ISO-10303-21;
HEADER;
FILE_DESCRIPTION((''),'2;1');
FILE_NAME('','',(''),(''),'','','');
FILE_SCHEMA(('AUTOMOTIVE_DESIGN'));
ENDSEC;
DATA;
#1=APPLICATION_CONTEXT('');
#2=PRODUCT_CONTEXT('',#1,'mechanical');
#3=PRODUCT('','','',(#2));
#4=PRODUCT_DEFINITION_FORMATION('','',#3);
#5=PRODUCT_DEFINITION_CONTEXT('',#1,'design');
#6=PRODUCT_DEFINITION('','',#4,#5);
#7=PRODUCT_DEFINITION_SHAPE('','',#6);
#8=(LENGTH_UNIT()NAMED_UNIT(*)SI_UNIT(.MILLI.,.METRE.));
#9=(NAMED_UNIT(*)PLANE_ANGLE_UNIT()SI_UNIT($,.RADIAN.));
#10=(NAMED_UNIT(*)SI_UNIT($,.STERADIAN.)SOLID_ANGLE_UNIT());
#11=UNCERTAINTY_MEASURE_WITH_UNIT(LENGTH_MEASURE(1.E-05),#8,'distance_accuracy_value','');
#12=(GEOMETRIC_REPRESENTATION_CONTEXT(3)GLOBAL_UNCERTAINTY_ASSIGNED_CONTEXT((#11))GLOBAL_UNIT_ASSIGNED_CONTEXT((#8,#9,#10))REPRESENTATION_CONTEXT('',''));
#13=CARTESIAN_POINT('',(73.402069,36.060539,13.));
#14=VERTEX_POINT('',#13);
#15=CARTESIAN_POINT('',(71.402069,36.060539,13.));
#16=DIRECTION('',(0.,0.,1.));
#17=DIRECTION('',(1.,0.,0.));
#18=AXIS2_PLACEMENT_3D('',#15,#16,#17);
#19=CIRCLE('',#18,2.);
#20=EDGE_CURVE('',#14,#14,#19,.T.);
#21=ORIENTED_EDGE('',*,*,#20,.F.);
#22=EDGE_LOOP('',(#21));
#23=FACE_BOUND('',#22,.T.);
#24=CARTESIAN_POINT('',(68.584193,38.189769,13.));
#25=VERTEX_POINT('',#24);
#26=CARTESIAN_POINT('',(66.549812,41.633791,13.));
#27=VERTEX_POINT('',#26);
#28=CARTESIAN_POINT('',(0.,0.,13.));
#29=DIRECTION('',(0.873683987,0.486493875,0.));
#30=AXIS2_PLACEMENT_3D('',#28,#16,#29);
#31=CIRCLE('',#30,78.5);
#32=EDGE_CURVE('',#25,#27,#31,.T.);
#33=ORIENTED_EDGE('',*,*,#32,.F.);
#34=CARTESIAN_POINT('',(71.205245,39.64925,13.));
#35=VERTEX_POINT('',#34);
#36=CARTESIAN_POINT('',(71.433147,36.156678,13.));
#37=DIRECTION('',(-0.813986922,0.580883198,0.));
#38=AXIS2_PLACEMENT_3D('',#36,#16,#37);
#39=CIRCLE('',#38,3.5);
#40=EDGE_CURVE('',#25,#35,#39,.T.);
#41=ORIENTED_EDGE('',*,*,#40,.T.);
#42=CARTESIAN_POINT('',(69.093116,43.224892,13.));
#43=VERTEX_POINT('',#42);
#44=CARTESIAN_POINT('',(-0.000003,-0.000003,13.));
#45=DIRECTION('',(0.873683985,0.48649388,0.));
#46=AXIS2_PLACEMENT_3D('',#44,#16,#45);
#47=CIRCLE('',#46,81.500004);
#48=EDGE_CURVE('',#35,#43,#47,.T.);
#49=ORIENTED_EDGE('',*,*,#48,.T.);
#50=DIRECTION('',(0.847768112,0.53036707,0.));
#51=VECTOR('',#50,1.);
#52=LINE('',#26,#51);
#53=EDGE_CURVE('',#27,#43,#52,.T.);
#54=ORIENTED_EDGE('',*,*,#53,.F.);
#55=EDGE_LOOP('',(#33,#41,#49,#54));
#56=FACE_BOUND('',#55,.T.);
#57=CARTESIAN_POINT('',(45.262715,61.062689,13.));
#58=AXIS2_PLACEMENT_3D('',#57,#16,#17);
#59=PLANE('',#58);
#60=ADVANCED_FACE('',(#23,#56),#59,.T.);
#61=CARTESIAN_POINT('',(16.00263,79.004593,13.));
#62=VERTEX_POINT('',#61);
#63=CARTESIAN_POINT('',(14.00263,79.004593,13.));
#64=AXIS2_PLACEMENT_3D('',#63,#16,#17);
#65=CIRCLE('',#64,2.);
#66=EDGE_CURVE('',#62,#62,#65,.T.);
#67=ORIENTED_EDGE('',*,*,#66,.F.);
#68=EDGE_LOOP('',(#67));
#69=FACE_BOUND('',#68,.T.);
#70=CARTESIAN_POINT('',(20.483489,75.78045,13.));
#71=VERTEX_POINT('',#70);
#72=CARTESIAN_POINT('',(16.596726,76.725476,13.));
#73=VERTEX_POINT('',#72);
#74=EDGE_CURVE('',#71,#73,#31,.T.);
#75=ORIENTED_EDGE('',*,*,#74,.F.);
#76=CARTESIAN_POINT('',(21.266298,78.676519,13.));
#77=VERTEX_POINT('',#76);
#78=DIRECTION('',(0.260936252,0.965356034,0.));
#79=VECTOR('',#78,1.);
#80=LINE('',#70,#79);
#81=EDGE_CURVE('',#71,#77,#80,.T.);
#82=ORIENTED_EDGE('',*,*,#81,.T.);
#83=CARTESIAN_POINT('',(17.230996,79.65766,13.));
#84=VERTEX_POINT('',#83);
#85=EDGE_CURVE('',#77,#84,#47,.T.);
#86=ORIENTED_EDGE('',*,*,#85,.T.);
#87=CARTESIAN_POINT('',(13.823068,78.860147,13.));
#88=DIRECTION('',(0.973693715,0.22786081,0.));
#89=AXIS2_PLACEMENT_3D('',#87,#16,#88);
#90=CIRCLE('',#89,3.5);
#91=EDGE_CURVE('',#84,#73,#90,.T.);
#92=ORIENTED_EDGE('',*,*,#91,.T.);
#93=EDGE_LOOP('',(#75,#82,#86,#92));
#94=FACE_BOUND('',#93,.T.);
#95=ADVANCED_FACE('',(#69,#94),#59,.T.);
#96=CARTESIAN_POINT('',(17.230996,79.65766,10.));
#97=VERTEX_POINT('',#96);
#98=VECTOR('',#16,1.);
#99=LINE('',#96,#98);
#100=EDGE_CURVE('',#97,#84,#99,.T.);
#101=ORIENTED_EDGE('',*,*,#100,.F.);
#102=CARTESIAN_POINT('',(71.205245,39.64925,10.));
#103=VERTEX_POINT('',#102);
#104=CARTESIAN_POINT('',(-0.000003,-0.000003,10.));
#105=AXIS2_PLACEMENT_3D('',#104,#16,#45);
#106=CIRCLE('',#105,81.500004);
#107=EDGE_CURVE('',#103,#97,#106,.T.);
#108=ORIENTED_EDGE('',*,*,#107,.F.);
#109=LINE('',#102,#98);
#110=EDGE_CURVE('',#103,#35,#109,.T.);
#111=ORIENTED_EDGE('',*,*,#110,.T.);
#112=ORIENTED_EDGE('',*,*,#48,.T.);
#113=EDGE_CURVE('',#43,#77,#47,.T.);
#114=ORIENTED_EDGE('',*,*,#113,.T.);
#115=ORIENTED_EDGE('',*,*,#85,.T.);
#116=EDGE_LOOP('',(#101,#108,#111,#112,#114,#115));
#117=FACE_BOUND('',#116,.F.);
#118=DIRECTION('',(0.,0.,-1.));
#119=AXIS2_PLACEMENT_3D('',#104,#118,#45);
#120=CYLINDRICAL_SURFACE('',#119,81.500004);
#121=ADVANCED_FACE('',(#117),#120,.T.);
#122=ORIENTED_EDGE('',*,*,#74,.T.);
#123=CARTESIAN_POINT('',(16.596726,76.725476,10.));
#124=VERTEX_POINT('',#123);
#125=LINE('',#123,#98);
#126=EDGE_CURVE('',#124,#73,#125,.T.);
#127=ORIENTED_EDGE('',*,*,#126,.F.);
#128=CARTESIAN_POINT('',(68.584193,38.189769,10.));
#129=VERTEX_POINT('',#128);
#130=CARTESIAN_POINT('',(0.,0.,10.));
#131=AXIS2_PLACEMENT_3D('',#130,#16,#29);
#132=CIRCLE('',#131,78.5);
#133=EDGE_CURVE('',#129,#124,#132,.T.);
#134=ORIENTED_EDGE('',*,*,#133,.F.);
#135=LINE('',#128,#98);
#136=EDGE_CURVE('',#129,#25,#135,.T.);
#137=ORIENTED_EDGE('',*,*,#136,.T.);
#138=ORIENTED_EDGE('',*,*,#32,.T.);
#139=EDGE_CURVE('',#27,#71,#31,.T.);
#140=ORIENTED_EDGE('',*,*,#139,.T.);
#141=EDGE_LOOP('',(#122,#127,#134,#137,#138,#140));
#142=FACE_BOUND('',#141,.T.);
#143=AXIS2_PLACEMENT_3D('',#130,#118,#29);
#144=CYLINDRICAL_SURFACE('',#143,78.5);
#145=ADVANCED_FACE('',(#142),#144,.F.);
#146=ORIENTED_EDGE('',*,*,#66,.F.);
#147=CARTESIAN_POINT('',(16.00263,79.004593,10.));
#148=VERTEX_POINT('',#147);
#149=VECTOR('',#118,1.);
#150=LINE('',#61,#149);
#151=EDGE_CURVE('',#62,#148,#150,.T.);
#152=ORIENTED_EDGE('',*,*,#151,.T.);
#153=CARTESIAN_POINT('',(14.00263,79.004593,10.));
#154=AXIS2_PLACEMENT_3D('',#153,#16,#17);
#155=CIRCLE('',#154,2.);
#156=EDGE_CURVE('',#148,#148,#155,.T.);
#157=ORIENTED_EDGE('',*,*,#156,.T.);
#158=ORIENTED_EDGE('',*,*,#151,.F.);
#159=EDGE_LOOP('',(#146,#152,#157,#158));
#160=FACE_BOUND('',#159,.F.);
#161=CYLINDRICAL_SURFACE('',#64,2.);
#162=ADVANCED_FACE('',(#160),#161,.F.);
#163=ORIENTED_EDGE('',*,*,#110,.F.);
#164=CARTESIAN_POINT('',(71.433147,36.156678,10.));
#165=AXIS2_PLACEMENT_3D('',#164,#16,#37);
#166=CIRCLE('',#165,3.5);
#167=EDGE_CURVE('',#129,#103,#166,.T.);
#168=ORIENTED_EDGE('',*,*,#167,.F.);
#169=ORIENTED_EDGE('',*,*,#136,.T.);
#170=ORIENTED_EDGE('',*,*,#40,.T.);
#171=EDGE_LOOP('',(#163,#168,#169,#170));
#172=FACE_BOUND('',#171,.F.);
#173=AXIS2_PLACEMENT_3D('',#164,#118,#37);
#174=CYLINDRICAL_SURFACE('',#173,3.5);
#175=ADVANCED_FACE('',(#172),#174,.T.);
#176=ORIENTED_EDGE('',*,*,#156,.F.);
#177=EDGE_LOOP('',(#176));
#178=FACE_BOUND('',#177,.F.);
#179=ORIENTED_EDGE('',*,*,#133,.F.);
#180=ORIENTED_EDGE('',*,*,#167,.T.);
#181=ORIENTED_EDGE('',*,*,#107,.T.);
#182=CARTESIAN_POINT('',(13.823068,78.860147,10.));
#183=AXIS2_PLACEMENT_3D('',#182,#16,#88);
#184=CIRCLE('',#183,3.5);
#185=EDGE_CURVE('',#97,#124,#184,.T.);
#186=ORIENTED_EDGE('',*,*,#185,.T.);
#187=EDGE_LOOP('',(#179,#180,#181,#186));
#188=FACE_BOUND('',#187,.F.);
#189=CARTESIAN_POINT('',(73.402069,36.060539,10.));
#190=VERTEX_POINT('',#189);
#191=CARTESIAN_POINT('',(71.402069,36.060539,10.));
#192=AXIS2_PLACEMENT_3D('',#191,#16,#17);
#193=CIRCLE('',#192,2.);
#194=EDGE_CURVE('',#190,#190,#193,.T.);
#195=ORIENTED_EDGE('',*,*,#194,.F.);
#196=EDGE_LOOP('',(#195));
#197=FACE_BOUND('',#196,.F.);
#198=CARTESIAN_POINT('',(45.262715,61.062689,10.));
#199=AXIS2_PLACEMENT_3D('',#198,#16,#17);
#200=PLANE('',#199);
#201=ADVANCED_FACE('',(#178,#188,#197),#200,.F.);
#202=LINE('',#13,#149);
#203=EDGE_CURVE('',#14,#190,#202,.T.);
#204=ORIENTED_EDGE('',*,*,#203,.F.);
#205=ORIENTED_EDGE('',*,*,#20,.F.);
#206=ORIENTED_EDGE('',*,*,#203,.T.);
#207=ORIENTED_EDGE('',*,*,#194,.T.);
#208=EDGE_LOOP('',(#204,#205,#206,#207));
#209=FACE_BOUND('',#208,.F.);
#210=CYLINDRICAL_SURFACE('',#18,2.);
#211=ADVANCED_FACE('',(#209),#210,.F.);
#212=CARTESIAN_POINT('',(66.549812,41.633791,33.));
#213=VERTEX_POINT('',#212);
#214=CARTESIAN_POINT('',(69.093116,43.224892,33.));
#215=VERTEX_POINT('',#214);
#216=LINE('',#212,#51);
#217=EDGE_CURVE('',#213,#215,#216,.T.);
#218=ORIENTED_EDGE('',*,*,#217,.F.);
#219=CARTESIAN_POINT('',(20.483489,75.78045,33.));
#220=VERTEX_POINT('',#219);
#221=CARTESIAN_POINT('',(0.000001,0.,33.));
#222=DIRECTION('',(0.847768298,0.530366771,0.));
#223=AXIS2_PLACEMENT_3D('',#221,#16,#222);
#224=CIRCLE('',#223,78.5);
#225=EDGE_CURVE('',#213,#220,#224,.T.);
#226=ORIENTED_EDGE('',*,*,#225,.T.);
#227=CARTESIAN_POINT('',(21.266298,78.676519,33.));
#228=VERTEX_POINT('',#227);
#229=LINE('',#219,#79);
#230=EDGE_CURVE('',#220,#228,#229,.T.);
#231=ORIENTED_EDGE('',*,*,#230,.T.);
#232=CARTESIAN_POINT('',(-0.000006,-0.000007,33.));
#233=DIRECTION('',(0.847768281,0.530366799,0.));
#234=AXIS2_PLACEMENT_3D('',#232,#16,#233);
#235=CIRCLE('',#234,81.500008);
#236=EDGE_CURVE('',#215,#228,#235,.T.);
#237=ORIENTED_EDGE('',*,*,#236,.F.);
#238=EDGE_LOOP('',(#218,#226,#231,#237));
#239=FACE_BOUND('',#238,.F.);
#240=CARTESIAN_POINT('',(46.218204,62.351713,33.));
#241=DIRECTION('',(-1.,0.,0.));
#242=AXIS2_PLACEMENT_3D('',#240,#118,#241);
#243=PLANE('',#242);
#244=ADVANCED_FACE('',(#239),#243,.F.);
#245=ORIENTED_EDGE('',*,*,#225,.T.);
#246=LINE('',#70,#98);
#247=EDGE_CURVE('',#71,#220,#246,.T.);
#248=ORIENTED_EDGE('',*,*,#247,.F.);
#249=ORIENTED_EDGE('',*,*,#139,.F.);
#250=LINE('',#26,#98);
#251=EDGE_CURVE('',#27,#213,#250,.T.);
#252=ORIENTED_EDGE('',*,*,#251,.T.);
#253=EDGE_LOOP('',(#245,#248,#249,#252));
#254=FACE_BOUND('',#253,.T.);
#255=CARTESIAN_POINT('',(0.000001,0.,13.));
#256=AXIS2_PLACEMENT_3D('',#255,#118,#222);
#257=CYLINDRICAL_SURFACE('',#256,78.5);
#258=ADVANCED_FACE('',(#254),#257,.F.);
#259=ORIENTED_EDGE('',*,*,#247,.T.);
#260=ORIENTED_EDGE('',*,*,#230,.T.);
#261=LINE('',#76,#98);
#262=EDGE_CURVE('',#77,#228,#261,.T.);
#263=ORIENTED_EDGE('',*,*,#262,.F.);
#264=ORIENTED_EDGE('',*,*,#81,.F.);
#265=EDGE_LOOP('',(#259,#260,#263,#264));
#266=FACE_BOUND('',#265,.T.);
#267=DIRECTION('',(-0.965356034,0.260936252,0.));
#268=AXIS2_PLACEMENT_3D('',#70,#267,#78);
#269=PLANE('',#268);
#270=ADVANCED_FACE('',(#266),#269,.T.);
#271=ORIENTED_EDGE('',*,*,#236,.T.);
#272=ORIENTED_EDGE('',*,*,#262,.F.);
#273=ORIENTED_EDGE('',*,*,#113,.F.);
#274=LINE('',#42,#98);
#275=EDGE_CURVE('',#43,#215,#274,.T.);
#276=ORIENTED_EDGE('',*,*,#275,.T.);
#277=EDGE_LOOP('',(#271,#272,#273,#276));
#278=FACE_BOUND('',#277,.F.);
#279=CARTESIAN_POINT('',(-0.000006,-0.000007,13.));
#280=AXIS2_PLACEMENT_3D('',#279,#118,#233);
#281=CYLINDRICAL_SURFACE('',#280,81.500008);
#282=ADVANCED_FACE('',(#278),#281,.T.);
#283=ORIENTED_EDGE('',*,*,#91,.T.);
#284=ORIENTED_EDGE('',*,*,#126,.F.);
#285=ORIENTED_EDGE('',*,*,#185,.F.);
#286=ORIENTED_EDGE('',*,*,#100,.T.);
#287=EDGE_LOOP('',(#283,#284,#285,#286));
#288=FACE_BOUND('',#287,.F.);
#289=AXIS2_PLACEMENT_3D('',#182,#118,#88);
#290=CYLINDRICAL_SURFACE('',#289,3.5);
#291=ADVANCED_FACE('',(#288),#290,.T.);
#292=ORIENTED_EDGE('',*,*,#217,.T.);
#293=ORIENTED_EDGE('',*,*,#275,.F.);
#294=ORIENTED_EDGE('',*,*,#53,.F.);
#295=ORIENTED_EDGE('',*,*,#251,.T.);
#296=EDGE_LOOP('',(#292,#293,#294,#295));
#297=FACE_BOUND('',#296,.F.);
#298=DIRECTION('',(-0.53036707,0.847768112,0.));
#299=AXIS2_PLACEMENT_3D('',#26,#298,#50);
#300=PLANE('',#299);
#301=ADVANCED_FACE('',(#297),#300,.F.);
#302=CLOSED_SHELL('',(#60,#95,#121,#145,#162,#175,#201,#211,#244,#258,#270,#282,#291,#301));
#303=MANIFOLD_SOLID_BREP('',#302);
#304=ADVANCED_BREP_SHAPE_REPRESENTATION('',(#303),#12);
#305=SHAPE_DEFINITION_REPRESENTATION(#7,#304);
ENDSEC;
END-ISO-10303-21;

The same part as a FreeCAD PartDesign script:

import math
import FreeCAD as App
import Part
import Sketcher
Q = App.Units.Quantity

doc = App.newDocument("Part")
body = doc.addObject("PartDesign::Body", "Body")

sketch1 = body.newObject("Sketcher::SketchObject", "Sketch")
sketch1.AttachmentSupport = (doc.getObject("XY_Plane"), [""])
sketch1.MapMode = "FlatFace"
sketch1.addGeometry([
    Part.ArcOfCircle(Part.Circle(App.Vector(0, 0, 0), App.Vector(0, 0, 1), 81.5), math.radians(29), math.radians(78)),
    Part.ArcOfCircle(Part.Circle(App.Vector(13.8, 78.9, 0), App.Vector(0, 0, 1), 3.5), math.radians(13), math.radians(322)),
    Part.ArcOfCircle(Part.Circle(App.Vector(0, 0, 0), App.Vector(0, 0, 1), 78.5), math.radians(29), math.radians(78)),
    Part.ArcOfCircle(Part.Circle(App.Vector(71.4, 36.2, 0), App.Vector(0, 0, 1), 3.5), math.radians(144), math.radians(454)),
], False)
sketch1.addConstraint([
    Sketcher.Constraint("Coincident", 0, 2, 1, 1),
    Sketcher.Constraint("Coincident", 1, 2, 2, 2),
    Sketcher.Constraint("Coincident", 2, 1, 3, 1),
    Sketcher.Constraint("Coincident", 3, 2, 0, 1),
    Sketcher.Constraint("Coincident", 0, 3, -1, 1),
    Sketcher.Constraint("Coincident", 2, 3, -1, 1),
    Sketcher.Constraint("Equal", 1, 3),
    Sketcher.Constraint("Radius", 1, Q("3.5 mm")),
    Sketcher.Constraint("Radius", 2, Q("78.5 mm")),
    Sketcher.Constraint("Radius", 0, Q("81.500004 mm")),
    Sketcher.Constraint("DistanceX", 0, 3, 0, 2, Q("17.230999 mm")),
    Sketcher.Constraint("DistanceY", 3, 3, 1, 2, Q("40.568798 mm")),
    Sketcher.Constraint("DistanceX", -1, 1, 1, 3, Q("13.823068 mm")),
    Sketcher.Constraint("DistanceY", -1, 1, 2, 1, Q("38.189769 mm")),
])
pad1 = body.newObject("PartDesign::Pad", "Pad")
pad1.Profile = sketch1
pad1.Length = 3

sketch2 = body.newObject("Sketcher::SketchObject", "Sketch001")
sketch2.AttachmentSupport = (doc.getObject("XY_Plane"), [""])
sketch2.MapMode = "FlatFace"
sketch2.AttachmentOffset = App.Placement(App.Vector(0, 0, 3), App.Rotation())
sketch2.addGeometry([
    Part.ArcOfCircle(Part.Circle(App.Vector(0, 0, 0), App.Vector(0, 0, 1), 78.5), math.radians(32), math.radians(75)),
    Part.LineSegment(App.Vector(66.5, 41.6, 0), App.Vector(69.1, 43.2, 0)),
    Part.ArcOfCircle(Part.Circle(App.Vector(0, 0, 0), App.Vector(0, 0, 1), 81.5), math.radians(32), math.radians(75)),
    Part.LineSegment(App.Vector(21.3, 78.7, 0), App.Vector(20.5, 75.8, 0)),
], False)
sketch2.addConstraint([
    Sketcher.Constraint("Coincident", 0, 1, 1, 1),
    Sketcher.Constraint("Coincident", 1, 2, 2, 1),
    Sketcher.Constraint("Coincident", 2, 2, 3, 1),
    Sketcher.Constraint("Coincident", 3, 2, 0, 2),
    Sketcher.Constraint("Coincident", 0, 3, -1, 1),
    Sketcher.Constraint("Coincident", 2, 3, -1, 1),
    Sketcher.Constraint("Radius", 0, Q("78.5 mm")),
    Sketcher.Constraint("Distance", 1, Q("3 mm")),
    Sketcher.Constraint("DistanceX", -1, 1, 2, 2, Q("21.266298 mm")),
    Sketcher.Constraint("DistanceY", 0, 1, 1, 2, Q("1.591101 mm")),
    Sketcher.Constraint("DistanceY", 2, 3, 1, 2, Q("43.224899 mm")),
    Sketcher.Constraint("DistanceX", -1, 1, 3, 2, Q("20.483489 mm")),
])
pad2 = body.newObject("PartDesign::Pad", "Pad001")
pad2.Profile = sketch2
pad2.Length = 20

sketch3 = body.newObject("Sketcher::SketchObject", "Sketch002")
sketch3.AttachmentSupport = (doc.getObject("XY_Plane"), [""])
sketch3.MapMode = "FlatFace"
sketch3.AttachmentOffset = App.Placement(App.Vector(0, 0, 3), App.Rotation())
sketch3.addGeometry([
    Part.Circle(App.Vector(71.4, 36.1, 0), App.Vector(0, 0, 1), 2),
    Part.Circle(App.Vector(14, 79, 0), App.Vector(0, 0, 1), 2),
], False)
sketch3.addConstraint([
    Sketcher.Constraint("Equal", 0, 1),
    Sketcher.Constraint("Diameter", 0, Q("4 mm")),
    Sketcher.Constraint("DistanceX", -1, 1, 0, 3, Q("71.402069 mm")),
    Sketcher.Constraint("DistanceY", -1, 1, 0, 3, Q("36.060539 mm")),
    Sketcher.Constraint("DistanceX", -1, 1, 1, 3, Q("14.00263 mm")),
    Sketcher.Constraint("DistanceY", -1, 1, 1, 3, Q("79.004593 mm")),
])
pocket1 = body.newObject("PartDesign::Pocket", "Pocket")
pocket1.Profile = sketch3
pocket1.Type = "ThroughAll"
body2 = doc.addObject("PartDesign::Body", "Body001")
doc.recompute()

body.Placement = App.Placement(App.Vector(0, 0, 10), App.Rotation(App.Vector(0, 0, 1), 0))
boolean = body2.newObject("PartDesign::Boolean", "Boolean")
boolean.Type = "Fuse"
boolean.addObjects([body])

doc.recompute()
